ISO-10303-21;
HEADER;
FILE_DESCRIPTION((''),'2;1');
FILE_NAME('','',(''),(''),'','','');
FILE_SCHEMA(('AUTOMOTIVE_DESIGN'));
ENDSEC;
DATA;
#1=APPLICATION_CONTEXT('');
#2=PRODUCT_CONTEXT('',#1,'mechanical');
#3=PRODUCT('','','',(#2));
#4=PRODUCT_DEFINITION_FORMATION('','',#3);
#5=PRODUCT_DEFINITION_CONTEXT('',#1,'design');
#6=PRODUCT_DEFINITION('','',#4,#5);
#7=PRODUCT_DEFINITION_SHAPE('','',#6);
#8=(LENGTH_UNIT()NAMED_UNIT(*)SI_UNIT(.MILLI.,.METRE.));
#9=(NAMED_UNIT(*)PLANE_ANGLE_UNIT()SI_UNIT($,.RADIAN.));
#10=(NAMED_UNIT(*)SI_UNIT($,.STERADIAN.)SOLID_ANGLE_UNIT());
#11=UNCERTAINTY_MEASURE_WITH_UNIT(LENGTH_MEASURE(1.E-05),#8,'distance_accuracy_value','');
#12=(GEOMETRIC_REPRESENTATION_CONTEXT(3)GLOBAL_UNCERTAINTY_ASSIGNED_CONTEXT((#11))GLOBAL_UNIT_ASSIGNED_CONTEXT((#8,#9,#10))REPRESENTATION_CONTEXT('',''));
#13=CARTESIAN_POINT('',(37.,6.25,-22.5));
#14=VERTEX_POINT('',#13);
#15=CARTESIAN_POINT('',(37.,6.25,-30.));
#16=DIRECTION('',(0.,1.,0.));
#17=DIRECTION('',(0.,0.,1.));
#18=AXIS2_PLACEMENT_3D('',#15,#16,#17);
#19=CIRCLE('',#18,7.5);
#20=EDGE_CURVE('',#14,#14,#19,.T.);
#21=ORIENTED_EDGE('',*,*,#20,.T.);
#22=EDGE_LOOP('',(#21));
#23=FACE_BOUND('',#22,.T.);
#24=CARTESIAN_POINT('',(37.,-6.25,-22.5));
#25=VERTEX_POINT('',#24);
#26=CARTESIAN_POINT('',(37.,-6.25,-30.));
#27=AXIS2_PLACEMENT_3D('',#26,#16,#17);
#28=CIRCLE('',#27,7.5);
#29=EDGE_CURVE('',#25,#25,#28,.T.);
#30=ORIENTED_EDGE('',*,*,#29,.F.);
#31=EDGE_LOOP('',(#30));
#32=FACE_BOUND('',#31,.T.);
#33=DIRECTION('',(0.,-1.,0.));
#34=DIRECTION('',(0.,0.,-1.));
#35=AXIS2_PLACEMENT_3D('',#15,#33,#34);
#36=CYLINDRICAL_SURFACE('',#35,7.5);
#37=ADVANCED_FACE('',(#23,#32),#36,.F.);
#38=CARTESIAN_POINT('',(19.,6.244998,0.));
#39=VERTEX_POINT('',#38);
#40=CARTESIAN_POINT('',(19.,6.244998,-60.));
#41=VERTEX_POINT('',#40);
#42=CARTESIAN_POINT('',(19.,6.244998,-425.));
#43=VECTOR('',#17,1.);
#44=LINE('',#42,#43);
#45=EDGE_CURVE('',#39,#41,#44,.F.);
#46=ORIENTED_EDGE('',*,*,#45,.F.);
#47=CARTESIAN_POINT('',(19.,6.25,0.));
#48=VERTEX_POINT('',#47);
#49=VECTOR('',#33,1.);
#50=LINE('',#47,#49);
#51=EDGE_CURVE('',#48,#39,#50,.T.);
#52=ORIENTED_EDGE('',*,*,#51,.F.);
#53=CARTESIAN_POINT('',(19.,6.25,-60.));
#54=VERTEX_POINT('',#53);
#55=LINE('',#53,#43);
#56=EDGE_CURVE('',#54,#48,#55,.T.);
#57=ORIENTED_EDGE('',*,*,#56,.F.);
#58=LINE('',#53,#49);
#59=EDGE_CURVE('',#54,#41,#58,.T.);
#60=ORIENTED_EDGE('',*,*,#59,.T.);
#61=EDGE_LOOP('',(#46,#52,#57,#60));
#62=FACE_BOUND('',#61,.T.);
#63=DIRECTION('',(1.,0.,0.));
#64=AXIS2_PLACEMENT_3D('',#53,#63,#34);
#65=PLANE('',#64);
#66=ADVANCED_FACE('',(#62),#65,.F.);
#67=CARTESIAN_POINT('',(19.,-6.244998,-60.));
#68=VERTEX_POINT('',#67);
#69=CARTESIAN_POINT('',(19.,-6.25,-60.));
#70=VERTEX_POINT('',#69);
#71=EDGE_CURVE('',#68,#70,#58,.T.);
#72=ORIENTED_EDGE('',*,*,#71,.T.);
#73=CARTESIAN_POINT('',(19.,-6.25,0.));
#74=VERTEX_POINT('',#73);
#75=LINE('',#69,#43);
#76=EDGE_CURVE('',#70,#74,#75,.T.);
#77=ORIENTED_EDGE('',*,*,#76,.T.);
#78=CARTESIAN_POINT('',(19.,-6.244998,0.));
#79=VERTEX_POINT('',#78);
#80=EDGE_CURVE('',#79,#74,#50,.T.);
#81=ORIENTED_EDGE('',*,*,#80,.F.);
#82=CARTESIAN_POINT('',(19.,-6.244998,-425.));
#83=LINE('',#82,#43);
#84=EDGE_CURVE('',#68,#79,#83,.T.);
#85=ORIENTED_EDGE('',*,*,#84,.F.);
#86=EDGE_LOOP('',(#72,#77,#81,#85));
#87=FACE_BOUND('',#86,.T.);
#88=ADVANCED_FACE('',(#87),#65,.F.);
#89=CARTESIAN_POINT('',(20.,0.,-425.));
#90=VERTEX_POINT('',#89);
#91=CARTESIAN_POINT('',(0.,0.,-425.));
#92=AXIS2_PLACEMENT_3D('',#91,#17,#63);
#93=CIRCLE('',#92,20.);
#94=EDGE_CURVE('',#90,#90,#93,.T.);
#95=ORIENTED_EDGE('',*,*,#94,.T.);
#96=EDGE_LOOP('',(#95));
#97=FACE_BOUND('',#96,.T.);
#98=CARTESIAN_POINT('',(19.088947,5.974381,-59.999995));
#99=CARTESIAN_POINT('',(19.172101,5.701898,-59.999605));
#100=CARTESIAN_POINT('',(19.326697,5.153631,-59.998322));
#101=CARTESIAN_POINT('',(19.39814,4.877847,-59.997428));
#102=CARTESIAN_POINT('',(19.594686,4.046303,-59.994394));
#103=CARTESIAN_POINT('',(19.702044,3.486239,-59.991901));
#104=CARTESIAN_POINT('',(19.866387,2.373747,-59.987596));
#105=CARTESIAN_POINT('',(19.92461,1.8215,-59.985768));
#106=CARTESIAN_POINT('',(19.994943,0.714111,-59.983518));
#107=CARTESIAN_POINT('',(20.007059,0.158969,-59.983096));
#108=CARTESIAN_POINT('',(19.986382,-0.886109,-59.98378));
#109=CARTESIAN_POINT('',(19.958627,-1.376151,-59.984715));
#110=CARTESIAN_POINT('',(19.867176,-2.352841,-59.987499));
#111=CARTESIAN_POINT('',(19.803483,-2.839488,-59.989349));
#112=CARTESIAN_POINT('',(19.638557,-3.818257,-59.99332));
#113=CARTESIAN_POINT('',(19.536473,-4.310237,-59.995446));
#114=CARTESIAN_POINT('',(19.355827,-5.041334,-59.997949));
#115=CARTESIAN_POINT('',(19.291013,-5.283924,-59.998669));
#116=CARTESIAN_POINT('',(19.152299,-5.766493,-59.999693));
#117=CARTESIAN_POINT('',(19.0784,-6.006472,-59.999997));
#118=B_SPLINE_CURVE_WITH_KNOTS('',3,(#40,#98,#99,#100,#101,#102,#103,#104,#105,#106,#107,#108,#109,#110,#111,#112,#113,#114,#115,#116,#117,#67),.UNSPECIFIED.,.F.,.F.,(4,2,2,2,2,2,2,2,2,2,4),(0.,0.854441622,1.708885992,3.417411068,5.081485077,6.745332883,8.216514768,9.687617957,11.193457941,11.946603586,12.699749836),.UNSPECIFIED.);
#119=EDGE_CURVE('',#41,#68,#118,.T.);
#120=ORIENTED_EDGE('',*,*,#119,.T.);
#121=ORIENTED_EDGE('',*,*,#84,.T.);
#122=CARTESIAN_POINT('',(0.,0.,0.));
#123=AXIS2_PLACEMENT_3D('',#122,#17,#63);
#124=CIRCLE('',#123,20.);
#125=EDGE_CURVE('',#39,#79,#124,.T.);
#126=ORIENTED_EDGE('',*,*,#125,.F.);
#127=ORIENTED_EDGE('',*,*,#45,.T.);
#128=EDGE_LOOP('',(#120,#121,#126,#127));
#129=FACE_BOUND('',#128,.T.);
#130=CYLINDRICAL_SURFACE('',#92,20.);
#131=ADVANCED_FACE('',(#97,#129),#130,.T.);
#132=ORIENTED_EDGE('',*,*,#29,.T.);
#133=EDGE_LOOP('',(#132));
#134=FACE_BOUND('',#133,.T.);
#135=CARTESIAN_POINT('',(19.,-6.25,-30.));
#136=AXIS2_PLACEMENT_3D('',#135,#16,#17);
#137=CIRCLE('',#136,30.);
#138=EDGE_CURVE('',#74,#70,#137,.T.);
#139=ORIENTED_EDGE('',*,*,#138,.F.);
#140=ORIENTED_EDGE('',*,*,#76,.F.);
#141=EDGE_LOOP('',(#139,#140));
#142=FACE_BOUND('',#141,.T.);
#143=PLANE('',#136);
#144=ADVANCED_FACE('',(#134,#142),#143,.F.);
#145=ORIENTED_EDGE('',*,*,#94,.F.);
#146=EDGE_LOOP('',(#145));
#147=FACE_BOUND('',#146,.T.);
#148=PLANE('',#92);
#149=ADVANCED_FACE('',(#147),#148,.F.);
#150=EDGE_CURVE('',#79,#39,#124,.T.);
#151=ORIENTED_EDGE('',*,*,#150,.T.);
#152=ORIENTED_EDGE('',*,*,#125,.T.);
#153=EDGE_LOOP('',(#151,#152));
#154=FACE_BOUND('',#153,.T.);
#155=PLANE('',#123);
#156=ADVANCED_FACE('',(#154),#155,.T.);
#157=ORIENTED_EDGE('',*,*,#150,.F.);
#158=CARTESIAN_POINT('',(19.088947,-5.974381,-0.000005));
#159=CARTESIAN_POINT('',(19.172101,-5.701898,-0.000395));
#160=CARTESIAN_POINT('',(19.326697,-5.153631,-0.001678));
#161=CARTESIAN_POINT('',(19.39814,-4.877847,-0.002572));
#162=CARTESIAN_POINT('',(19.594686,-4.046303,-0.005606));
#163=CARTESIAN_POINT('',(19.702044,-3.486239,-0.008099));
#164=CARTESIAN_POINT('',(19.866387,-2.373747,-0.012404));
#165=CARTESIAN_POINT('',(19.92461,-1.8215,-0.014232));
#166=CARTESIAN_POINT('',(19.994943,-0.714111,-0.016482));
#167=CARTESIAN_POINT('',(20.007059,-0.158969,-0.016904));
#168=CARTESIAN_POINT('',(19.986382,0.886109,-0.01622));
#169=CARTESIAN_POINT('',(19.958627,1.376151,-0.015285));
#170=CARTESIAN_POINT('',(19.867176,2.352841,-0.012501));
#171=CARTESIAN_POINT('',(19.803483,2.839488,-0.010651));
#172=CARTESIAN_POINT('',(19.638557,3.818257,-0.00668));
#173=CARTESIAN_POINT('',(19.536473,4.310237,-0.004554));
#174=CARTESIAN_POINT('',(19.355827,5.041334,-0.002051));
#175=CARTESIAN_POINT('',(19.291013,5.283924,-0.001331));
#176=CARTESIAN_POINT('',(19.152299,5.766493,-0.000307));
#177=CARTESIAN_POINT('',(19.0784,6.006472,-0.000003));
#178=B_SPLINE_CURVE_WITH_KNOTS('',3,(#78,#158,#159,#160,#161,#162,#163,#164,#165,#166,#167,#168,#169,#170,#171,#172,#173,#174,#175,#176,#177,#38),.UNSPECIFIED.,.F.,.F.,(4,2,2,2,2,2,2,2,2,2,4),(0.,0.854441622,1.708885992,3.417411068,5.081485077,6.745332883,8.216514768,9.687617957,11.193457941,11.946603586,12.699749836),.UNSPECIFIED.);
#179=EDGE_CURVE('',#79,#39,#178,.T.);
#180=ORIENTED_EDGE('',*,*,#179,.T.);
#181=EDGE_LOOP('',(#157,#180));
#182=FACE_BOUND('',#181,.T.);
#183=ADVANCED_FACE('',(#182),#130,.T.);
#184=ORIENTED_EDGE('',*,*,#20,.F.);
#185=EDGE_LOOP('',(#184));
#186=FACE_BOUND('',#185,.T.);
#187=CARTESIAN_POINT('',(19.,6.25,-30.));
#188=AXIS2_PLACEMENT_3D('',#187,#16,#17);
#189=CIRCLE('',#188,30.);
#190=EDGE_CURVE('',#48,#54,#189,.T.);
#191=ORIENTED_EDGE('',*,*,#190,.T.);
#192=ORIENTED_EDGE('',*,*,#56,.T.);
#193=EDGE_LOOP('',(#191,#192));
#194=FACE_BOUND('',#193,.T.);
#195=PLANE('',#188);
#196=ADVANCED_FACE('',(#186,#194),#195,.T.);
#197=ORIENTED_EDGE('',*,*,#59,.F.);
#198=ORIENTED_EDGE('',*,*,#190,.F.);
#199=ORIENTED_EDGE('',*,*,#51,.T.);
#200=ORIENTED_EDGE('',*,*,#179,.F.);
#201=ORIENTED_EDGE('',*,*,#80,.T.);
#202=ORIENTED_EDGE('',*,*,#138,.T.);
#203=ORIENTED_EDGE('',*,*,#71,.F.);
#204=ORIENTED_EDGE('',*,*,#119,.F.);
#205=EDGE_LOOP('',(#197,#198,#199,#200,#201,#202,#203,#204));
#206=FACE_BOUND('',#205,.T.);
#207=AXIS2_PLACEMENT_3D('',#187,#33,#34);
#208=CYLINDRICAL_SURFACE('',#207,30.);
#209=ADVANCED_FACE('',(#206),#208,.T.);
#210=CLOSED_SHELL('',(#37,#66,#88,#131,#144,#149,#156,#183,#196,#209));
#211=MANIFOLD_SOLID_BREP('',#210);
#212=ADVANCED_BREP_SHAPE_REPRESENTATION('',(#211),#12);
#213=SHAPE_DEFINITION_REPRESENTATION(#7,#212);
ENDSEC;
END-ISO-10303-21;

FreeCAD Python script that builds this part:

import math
import FreeCAD as App
import Part
import Sketcher

doc = App.newDocument("Part")
body = doc.addObject("PartDesign::Body", "Body")

sketch1 = doc.addObject("Sketcher::SketchObject", "Sketch")
body.addObject(sketch1)
sketch1.AttachmentSupport = (doc.XY_Plane, [""])
sketch1.MapMode = "FlatFace"
sketch1.addGeometry(Part.Circle(App.Vector(0, 0, 0), App.Vector(0, 0, 1), 20), False)
sketch1.addConstraint(Sketcher.Constraint("Coincident", 0, 3, -1, 1))
sketch1.addConstraint(Sketcher.Constraint("Diameter", 0, 40.0))
pad1 = doc.addObject("PartDesign::Pad", "Pad")
body.addObject(pad1)
pad1.Profile = sketch1
pad1.Length = 425
pad1.Reversed = True

sketch2 = doc.addObject("Sketcher::SketchObject", "Sketch001")
body.addObject(sketch2)
sketch2.AttachmentSupport = (doc.XZ_Plane, [""])
sketch2.MapMode = "FlatFace"
sketch2.addGeometry(Part.LineSegment(App.Vector(19, -60, 0), App.Vector(19, 0, 0)), False)
sketch2.addGeometry(Part.ArcOfCircle(Part.Circle(App.Vector(19, -30, 0), App.Vector(0, 0, 1), 30), math.radians(-90), math.radians(90)), False)
sketch2.addGeometry(Part.Circle(App.Vector(37, -30, 0), App.Vector(0, 0, 1), 7.5), False)
sketch2.addConstraint(Sketcher.Constraint("Coincident", 0, 1, 1, 1))
sketch2.addConstraint(Sketcher.Constraint("Coincident", 1, 2, 0, 2))
sketch2.addConstraint(Sketcher.Constraint("Vertical", 0))
sketch2.addConstraint(Sketcher.Constraint("PointOnObject", 1, 2, -1))
sketch2.addConstraint(Sketcher.Constraint("Horizontal", 1, 3, 2, 3))
sketch2.addConstraint(Sketcher.Constraint("Vertical", 1, 3, 0, 1))
sketch2.addConstraint(Sketcher.Constraint("Diameter", 2, 15.0))
sketch2.addConstraint(Sketcher.Constraint("Radius", 1, 30.0))
sketch2.addConstraint(Sketcher.Constraint("DistanceX", -1, 1, 1, 3, 19.0))
sketch2.addConstraint(Sketcher.Constraint("DistanceX", -1, 1, 2, 3, 37.0))
pad2 = doc.addObject("PartDesign::Pad", "Pad001")
body.addObject(pad2)
pad2.Profile = sketch2
pad2.Length = 12.5
pad2.Midplane = True

doc.recompute()
